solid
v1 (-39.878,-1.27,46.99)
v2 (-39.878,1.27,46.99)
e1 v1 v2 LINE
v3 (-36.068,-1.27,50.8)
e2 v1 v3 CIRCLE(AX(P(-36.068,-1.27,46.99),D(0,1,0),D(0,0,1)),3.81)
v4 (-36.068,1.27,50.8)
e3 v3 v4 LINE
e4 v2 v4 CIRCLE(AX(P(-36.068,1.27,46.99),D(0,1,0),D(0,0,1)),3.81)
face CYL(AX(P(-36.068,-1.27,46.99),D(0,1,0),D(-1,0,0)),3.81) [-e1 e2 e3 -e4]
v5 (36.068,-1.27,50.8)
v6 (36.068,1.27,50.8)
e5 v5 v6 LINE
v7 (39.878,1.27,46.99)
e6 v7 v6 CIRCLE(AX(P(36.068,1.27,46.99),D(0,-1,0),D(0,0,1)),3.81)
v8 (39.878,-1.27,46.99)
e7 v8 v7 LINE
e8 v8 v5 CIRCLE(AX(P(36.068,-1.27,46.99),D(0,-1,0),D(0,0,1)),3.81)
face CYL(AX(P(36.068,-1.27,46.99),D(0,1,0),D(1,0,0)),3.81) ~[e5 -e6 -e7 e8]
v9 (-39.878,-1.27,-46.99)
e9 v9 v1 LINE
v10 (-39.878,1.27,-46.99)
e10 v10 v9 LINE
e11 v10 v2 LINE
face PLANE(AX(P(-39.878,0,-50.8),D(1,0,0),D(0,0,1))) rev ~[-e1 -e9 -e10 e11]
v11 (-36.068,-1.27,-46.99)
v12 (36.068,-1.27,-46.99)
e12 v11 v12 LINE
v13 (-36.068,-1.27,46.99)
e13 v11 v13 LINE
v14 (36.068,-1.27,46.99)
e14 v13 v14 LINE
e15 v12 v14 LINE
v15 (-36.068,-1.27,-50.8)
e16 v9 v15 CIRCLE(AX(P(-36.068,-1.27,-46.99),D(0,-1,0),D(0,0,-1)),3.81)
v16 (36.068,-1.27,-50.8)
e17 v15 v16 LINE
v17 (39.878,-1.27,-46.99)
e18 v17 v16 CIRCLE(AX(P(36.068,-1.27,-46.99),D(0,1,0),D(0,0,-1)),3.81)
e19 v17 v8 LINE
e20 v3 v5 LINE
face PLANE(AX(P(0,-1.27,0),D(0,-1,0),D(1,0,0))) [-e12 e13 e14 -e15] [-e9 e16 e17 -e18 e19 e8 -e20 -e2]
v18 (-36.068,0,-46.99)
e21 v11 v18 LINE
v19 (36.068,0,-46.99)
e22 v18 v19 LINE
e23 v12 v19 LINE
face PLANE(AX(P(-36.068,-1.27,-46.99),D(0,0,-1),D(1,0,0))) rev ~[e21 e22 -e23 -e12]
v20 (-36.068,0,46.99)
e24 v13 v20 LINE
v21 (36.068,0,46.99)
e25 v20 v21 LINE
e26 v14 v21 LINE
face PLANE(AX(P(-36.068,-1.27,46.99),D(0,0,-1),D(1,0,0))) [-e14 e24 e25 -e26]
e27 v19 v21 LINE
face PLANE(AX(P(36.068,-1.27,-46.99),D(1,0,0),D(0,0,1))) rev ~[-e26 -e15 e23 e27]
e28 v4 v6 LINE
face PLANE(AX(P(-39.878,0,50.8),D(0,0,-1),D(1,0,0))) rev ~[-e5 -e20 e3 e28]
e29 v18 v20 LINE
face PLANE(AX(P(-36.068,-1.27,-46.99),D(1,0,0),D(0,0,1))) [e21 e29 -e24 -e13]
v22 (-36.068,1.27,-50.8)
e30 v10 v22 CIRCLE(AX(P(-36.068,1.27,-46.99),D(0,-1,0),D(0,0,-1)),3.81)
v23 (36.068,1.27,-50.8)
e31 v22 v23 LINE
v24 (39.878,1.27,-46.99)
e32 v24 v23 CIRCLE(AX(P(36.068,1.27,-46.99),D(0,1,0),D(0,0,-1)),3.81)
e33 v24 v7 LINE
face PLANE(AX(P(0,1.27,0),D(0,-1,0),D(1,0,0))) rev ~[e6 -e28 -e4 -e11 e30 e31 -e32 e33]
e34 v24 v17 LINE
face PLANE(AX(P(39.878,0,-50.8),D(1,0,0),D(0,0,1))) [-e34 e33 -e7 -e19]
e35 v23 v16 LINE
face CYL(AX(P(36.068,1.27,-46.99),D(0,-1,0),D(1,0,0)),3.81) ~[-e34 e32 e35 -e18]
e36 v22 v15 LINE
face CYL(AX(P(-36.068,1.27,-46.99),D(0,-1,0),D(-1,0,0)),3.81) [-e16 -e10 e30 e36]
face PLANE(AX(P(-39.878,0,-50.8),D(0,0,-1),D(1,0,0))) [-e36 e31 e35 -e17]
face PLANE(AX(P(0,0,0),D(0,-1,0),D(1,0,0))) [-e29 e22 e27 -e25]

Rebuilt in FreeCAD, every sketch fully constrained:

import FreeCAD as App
import Part
import Sketcher
Q = App.Units.Quantity


def edges_at(feature, points):
    """Names of the edges that pass closest to the given points."""
    edges = feature.Shape.Edges
    near = lambda p: min(range(len(edges)), key=lambda i: edges[i].distToShape(Part.Vertex(*p))[0])
    return sorted({f"Edge{near(p) + 1}" for p in points})


def add_polygon(sketch, points):
    """Adds a closed chain of lines whose ends are joined by coincident constraints."""
    first, n = sketch.GeometryCount, len(points)
    for a, b in zip(points, points[1:] + points[:1]):
        sketch.addGeometry(Part.LineSegment(App.Vector(*a, 0), App.Vector(*b, 0)), False)
    for i in range(n):
        sketch.addConstraint(Sketcher.Constraint("Coincident", first + i, 2, first + (i + 1) % n, 1))

doc = App.newDocument("Part")
params = doc.addObject("Spreadsheet::Sheet", "Params")
for row, (alias, value) in enumerate([
    ("sketch1_height", "4 in"),
    ("sketch1_width", "3.14 in"),
    ("pad1_length", "0.1 in"),
    ("fillet_radius", "0.15 in"),
    ("sketch2_height", "3.7 in"),
    ("sketch2_width", "2.84 in"),
    ("pocket1_length", "0.05 in"),
], start=1):
    params.set(f"A{row}", alias)
    params.set(f"B{row}", "=" + value)
    params.setAlias(f"B{row}", alias)

body = doc.addObject("PartDesign::Body", "Body")

sketch1 = body.newObject("Sketcher::SketchObject", "Sketch")
sketch1.AttachmentSupport = (doc.getObject("XZ_Plane"), [""])
sketch1.MapMode = "FlatFace"
add_polygon(sketch1, [(-40, 51), (-40, -51), (40, -51), (40, 51)])
sketch1.addConstraint([
    Sketcher.Constraint("Vertical", 0),
    Sketcher.Constraint("Horizontal", 1),
    Sketcher.Constraint("Vertical", 2),
    Sketcher.Constraint("Horizontal", 3),
    Sketcher.Constraint("Symmetric", 0, 2, 2, 2, -1, 1),
    Sketcher.Constraint("DistanceY", 0, 2, 0, 1, Q("4 in")),
    Sketcher.Constraint("DistanceX", 1, 1, 1, 2, Q("3.14 in")),
])
sketch1.setExpression("Constraints[9]", "Params.sketch1_height")
sketch1.setExpression("Constraints[10]", "Params.sketch1_width")
pad1 = body.newObject("PartDesign::Pad", "Pad")
pad1.Profile = sketch1
pad1.setExpression("Length", "Params.pad1_length")
pad1.Midplane = True
doc.recompute()

fillet = body.newObject("PartDesign::Fillet", "Fillet")
fillet.Base = (pad1, edges_at(pad1, [
    (-39.878, 0, 50.8),
    (39.878, 0, 50.8),
    (39.878, 0, -50.8),
    (-39.878, 0, -50.8),
]))
fillet.setExpression("Radius", "Params.fillet_radius")

sketch2 = body.newObject("Sketcher::SketchObject", "Sketch001")
sketch2.AttachmentSupport = (doc.getObject("XZ_Plane"), [""])
sketch2.MapMode = "FlatFace"
sketch2.AttachmentOffset = App.Placement(App.Vector(0, 0, 0.05 * 25.4), App.Rotation())
add_polygon(sketch2, [(-36, 47), (-36, -47), (36, -47), (36, 47)])
sketch2.addConstraint([
    Sketcher.Constraint("Vertical", 0),
    Sketcher.Constraint("Horizontal", 1),
    Sketcher.Constraint("Vertical", 2),
    Sketcher.Constraint("Horizontal", 3),
    Sketcher.Constraint("Symmetric", 0, 2, 2, 2, -1, 1),
    Sketcher.Constraint("DistanceY", 0, 2, 0, 1, Q("3.7 in")),
    Sketcher.Constraint("DistanceX", 1, 1, 1, 2, Q("2.84 in")),
])
sketch2.setExpression("Constraints[9]", "Params.sketch2_height")
sketch2.setExpression("Constraints[10]", "Params.sketch2_width")
pocket1 = body.newObject("PartDesign::Pocket", "Pocket")
pocket1.Profile = sketch2
pocket1.setExpression("Length", "Params.pocket1_length")

doc.recompute()
